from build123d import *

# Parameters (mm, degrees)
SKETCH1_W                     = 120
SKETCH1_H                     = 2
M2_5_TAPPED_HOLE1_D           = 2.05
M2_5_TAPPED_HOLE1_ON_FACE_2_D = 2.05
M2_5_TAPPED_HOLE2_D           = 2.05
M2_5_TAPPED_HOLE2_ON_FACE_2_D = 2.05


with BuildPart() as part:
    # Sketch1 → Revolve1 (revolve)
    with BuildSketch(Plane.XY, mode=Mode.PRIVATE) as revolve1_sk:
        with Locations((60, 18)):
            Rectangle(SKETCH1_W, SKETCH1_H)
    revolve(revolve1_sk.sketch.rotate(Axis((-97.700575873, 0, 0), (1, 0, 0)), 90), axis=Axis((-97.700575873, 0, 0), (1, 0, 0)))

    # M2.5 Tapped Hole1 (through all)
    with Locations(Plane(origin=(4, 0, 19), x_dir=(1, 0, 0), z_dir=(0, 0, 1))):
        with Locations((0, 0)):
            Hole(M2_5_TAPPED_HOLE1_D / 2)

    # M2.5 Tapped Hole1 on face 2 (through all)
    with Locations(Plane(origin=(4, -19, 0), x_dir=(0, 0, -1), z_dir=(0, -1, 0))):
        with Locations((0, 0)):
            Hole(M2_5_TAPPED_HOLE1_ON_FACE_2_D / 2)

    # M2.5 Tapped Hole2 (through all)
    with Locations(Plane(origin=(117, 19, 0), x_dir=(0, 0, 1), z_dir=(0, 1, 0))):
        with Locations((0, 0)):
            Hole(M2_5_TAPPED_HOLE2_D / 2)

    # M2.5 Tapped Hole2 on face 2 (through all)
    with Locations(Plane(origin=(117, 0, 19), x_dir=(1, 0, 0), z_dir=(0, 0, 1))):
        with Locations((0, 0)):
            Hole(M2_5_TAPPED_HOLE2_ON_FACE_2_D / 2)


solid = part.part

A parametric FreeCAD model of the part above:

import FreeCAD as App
import Part
import Sketcher


def add_polygon(sketch, points):
    """Adds a closed chain of lines whose ends are joined by coincident constraints."""
    first, n = sketch.GeometryCount, len(points)
    for a, b in zip(points, points[1:] + points[:1]):
        sketch.addGeometry(Part.LineSegment(App.Vector(*a, 0), App.Vector(*b, 0)), False)
    for i in range(n):
        sketch.addConstraint(Sketcher.Constraint("Coincident", first + i, 2, first + (i + 1) % n, 1))

doc = App.newDocument("Part")
body = doc.addObject("PartDesign::Body", "Body")

# Sketch on XY plane
sketch1 = body.newObject("Sketcher::SketchObject", "Sketch")
sketch1.AttachmentSupport = (doc.getObject("XY_Plane"), [""])
sketch1.MapMode = "FlatFace"
add_polygon(sketch1, [(0, 19), (0, 17), (120, 17), (120, 19)])  # lines 0-3
sketch1.addConstraint(Sketcher.Constraint("Vertical", 0))
sketch1.addConstraint(Sketcher.Constraint("Horizontal", 1))
sketch1.addConstraint(Sketcher.Constraint("Vertical", 2))
sketch1.addConstraint(Sketcher.Constraint("Horizontal", 3))
sketch1.addConstraint(Sketcher.Constraint("PointOnObject", 0, 2, -2))
sketch1.addConstraint(Sketcher.Constraint("DistanceX", 1, 1, 1, 2, 120.0))
sketch1.addConstraint(Sketcher.Constraint("DistanceY", 0, 2, 0, 1, 2.0))
sketch1.addConstraint(Sketcher.Constraint("DistanceY", -1, 1, 0, 2, 17.0))
revolution = body.newObject("PartDesign::Revolution", "Revolution")
revolution.Profile = sketch1
revolution.ReferenceAxis = (sketch1, ["H_Axis"])
revolution.Angle = 360

# Sketch on XY plane
sketch2 = body.newObject("Sketcher::SketchObject", "Sketch001")
sketch2.AttachmentSupport = (doc.getObject("XY_Plane"), [""])
sketch2.MapMode = "FlatFace"
sketch2.AttachmentOffset = App.Placement(App.Vector(0, 0, 19), App.Rotation())
sketch2.addGeometry(Part.Circle(App.Vector(4, 0, 0), App.Vector(0, 0, 1), 1), False)
sketch2.addConstraint(Sketcher.Constraint("PointOnObject", 0, 3, -1))
sketch2.addConstraint(Sketcher.Constraint("Diameter", 0, 2.05))
sketch2.addConstraint(Sketcher.Constraint("DistanceX", -1, 1, 0, 3, 4.0))
doc.recompute()
hole = body.newObject("PartDesign::Hole", "Hole")
hole.Profile = sketch2
hole.ThreadType = "None"
hole.Diameter = 2.05
hole.DepthType = "ThroughAll"

# Sketch on XZ plane
sketch3 = body.newObject("Sketcher::SketchObject", "Sketch002")
sketch3.AttachmentSupport = (doc.getObject("XZ_Plane"), [""])
sketch3.MapMode = "FlatFace"
sketch3.AttachmentOffset = App.Placement(App.Vector(0, 0, 19), App.Rotation())
sketch3.addGeometry(Part.Circle(App.Vector(4, 0, 0), App.Vector(0, 0, 1), 1), False)
sketch3.addConstraint(Sketcher.Constraint("PointOnObject", 0, 3, -1))
sketch3.addConstraint(Sketcher.Constraint("Diameter", 0, 2.05))
sketch3.addConstraint(Sketcher.Constraint("DistanceX", -1, 1, 0, 3, 4.0))
doc.recompute()
hole2 = body.newObject("PartDesign::Hole", "Hole001")
hole2.Profile = sketch3
hole2.ThreadType = "None"
hole2.Diameter = 2.05
hole2.DepthType = "ThroughAll"

# Sketch on XZ plane
sketch4 = body.newObject("Sketcher::SketchObject", "Sketch003")
sketch4.AttachmentSupport = (doc.getObject("XZ_Plane"), [""])
sketch4.MapMode = "FlatFace"
sketch4.AttachmentOffset = App.Placement(App.Vector(0, 0, -19), App.Rotation())
sketch4.addGeometry(Part.Circle(App.Vector(117, 0, 0), App.Vector(0, 0, 1), 1), False)
sketch4.addConstraint(Sketcher.Constraint("PointOnObject", 0, 3, -1))
sketch4.addConstraint(Sketcher.Constraint("Diameter", 0, 2.05))
sketch4.addConstraint(Sketcher.Constraint("DistanceX", -1, 1, 0, 3, 117.0))
doc.recompute()
hole3 = body.newObject("PartDesign::Hole", "Hole002")
hole3.Profile = sketch4
hole3.ThreadType = "None"
hole3.Diameter = 2.05
hole3.DepthType = "ThroughAll"
hole3.Reversed = True

# Sketch on XY plane
sketch5 = body.newObject("Sketcher::SketchObject", "Sketch004")
sketch5.AttachmentSupport = (doc.getObject("XY_Plane"), [""])
sketch5.MapMode = "FlatFace"
sketch5.AttachmentOffset = App.Placement(App.Vector(0, 0, 19), App.Rotation())
sketch5.addGeometry(Part.Circle(App.Vector(117, 0, 0), App.Vector(0, 0, 1), 1), False)
sketch5.addConstraint(Sketcher.Constraint("PointOnObject", 0, 3, -1))
sketch5.addConstraint(Sketcher.Constraint("Diameter", 0, 2.05))
sketch5.addConstraint(Sketcher.Constraint("DistanceX", -1, 1, 0, 3, 117.0))
doc.recompute()
hole4 = body.newObject("PartDesign::Hole", "Hole003")
hole4.Profile = sketch5
hole4.ThreadType = "None"
hole4.Diameter = 2.05
hole4.DepthType = "ThroughAll"

doc.recompute()
